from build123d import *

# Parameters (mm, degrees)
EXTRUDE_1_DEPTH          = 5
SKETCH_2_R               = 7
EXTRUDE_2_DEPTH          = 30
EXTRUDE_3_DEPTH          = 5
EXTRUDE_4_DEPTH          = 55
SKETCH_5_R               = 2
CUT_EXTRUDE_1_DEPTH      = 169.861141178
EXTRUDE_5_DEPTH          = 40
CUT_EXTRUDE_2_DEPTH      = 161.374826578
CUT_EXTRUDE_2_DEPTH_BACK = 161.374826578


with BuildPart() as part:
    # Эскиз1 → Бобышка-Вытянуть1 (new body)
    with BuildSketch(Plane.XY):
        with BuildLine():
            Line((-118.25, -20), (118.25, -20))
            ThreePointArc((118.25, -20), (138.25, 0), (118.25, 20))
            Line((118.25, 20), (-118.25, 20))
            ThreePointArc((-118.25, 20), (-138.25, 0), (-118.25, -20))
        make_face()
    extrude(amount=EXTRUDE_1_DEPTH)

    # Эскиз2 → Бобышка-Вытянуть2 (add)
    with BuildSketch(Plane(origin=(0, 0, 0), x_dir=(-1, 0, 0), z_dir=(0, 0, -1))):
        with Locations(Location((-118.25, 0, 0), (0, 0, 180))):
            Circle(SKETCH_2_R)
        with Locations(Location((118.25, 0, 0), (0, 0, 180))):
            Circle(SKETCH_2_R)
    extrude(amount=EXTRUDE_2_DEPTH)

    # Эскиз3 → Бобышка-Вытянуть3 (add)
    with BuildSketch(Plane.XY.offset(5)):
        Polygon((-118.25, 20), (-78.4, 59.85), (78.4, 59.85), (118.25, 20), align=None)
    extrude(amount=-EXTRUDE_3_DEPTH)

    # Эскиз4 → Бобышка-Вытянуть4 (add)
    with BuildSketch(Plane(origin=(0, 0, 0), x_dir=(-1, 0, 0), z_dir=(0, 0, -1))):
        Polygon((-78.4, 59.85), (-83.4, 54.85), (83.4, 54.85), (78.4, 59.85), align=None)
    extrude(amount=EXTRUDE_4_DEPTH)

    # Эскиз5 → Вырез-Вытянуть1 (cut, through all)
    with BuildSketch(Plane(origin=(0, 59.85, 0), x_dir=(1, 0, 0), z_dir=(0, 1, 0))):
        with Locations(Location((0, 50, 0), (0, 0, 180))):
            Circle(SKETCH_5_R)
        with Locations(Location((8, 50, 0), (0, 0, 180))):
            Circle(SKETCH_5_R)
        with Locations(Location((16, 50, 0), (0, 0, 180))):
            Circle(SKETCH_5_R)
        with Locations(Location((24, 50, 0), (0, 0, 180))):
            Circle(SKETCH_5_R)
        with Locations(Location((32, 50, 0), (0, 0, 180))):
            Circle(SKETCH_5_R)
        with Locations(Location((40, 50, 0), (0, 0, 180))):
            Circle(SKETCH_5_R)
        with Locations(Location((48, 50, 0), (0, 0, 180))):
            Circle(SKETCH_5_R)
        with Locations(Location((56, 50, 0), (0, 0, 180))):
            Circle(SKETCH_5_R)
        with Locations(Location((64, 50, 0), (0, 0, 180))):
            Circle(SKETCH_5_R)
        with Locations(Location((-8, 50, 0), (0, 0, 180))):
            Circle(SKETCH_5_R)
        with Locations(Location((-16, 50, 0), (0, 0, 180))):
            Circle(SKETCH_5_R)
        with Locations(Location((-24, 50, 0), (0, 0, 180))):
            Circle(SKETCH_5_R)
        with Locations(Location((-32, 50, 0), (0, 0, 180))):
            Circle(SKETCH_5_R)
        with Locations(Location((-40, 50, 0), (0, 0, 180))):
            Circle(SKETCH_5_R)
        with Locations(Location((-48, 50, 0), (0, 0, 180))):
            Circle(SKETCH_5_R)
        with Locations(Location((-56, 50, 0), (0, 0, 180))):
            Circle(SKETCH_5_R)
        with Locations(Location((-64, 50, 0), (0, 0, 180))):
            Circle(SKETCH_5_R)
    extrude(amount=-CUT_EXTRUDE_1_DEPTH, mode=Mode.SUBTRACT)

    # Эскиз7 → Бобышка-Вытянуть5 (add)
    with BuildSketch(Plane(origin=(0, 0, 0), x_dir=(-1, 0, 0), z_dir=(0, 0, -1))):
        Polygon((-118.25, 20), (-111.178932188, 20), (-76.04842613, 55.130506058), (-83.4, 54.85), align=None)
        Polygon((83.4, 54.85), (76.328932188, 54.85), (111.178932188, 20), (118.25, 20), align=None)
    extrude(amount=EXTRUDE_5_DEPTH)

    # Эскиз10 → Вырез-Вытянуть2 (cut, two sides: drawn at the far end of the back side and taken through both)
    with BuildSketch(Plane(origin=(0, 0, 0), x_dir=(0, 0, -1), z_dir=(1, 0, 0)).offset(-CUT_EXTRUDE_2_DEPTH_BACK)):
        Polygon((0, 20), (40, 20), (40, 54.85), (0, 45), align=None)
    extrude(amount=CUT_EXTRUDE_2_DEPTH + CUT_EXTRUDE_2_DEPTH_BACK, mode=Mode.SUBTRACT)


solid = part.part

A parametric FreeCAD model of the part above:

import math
import FreeCAD as App
import Part
import Sketcher

V = App.Vector

doc = App.newDocument("Part")
body = doc.addObject("PartDesign::Body", "Body")

sketch1 = body.newObject("Sketcher::SketchObject", "Sketch")
sketch1.AttachmentSupport = (doc.getObject("XY_Plane"), [""])
sketch1.MapMode = "FlatFace"
sketch1.addGeometry([
    Part.LineSegment(V(-118, -20, 0), V(118, -20, 0)),
    Part.ArcOfCircle(Part.Circle(V(118, 0, 0), V(0, 0, 1), 20), math.radians(-90), math.radians(90)),
    Part.LineSegment(V(118, 20, 0), V(-118, 20, 0)),
    Part.ArcOfCircle(Part.Circle(V(-118, 0, 0), V(0, 0, 1), 20), math.radians(90), math.radians(270)),
], False)
sketch1.addConstraint([
    Sketcher.Constraint("Tangent", 0, 2, 1, 1),
    Sketcher.Constraint("Tangent", 1, 2, 2, 1),
    Sketcher.Constraint("Tangent", 2, 2, 3, 1),
    Sketcher.Constraint("Tangent", 3, 2, 0, 1),
    Sketcher.Constraint("Horizontal", 0),
    Sketcher.Constraint("Horizontal", 2),
    Sketcher.Constraint("Symmetric", 1, 3, 3, 3, -1, 1),
    Sketcher.Constraint("Radius", 1, 20.0),
    Sketcher.Constraint("DistanceX", 0, 1, 0, 2, 236.5),
])
pad1 = body.newObject("PartDesign::Pad", "Pad")
pad1.Profile = sketch1
pad1.Length = 5

sketch2 = body.newObject("Sketcher::SketchObject", "Sketch001")
sketch2.AttachmentSupport = (doc.getObject("XY_Plane"), [""])
sketch2.MapMode = "FlatFace"
sketch2.addGeometry([
    Part.Circle(V(118, 0, 0), V(0, 0, 1), 7),
    Part.Circle(V(-118, 0, 0), V(0, 0, 1), 7),
], False)
sketch2.addConstraint([
    Sketcher.Constraint("Equal", 0, 1),
    Sketcher.Constraint("Symmetric", 0, 3, 1, 3, -1, 1),
    Sketcher.Constraint("PointOnObject", 0, 3, -1),
    Sketcher.Constraint("Diameter", 0, 14.0),
    Sketcher.Constraint("DistanceX", 1, 3, 0, 3, 236.5),
])
pad2 = body.newObject("PartDesign::Pad", "Pad001")
pad2.Profile = sketch2
pad2.Length = 30
pad2.Reversed = True

sketch3 = body.newObject("Sketcher::SketchObject", "Sketch002")
sketch3.AttachmentSupport = (doc.getObject("XY_Plane"), [""])
sketch3.MapMode = "FlatFace"
sketch3.AttachmentOffset = App.Placement(V(0, 0, 5), App.Rotation())
sketch3.addGeometry([
    Part.LineSegment(V(-78, 60, 0), V(-118, 20, 0)),
    Part.LineSegment(V(-118, 20, 0), V(118, 20, 0)),
    Part.LineSegment(V(118, 20, 0), V(78, 60, 0)),
    Part.LineSegment(V(78, 60, 0), V(-78, 60, 0)),
], False)
sketch3.addConstraint([
    Sketcher.Constraint("Coincident", 0, 2, 1, 1),
    Sketcher.Constraint("Coincident", 1, 2, 2, 1),
    Sketcher.Constraint("Coincident", 2, 2, 3, 1),
    Sketcher.Constraint("Coincident", 3, 2, 0, 1),
    Sketcher.Constraint("Horizontal", 1),
    Sketcher.Constraint("Horizontal", 3),
    Sketcher.Constraint("Perpendicular", 0, 2),
    Sketcher.Constraint("Equal", 0, 2),
    Sketcher.Constraint("DistanceX", 1, 1, 1, 2, 236.5),
    Sketcher.Constraint("DistanceX", 3, 2, 3, 1, 156.8),
    Sketcher.Constraint("DistanceY", -1, 1, 0, 2, 20.0),
    Sketcher.Constraint("DistanceX", -1, 1, 2, 2, 78.4),
])
pad3 = body.newObject("PartDesign::Pad", "Pad002")
pad3.Profile = sketch3
pad3.Length = 5
pad3.Reversed = True

sketch4 = body.newObject("Sketcher::SketchObject", "Sketch003")
sketch4.AttachmentSupport = (doc.getObject("XY_Plane"), [""])
sketch4.MapMode = "FlatFace"
sketch4.addGeometry([
    Part.LineSegment(V(78, 60, 0), V(83, 55, 0)),
    Part.LineSegment(V(83, 55, 0), V(-83, 55, 0)),
    Part.LineSegment(V(-83, 55, 0), V(-78, 60, 0)),
    Part.LineSegment(V(-78, 60, 0), V(78, 60, 0)),
], False)
sketch4.addConstraint([
    Sketcher.Constraint("Coincident", 0, 2, 1, 1),
    Sketcher.Constraint("Coincident", 1, 2, 2, 1),
    Sketcher.Constraint("Coincident", 2, 2, 3, 1),
    Sketcher.Constraint("Coincident", 3, 2, 0, 1),
    Sketcher.Constraint("Horizontal", 1),
    Sketcher.Constraint("Horizontal", 3),
    Sketcher.Constraint("Perpendicular", 0, 2),
    Sketcher.Constraint("Equal", 0, 2),
    Sketcher.Constraint("DistanceX", 1, 2, 1, 1, 166.8),
    Sketcher.Constraint("DistanceX", 3, 1, 3, 2, 156.8),
    Sketcher.Constraint("DistanceX", -1, 1, 0, 2, 83.4),
    Sketcher.Constraint("DistanceY", -1, 1, 0, 2, 54.85),
])
pad4 = body.newObject("PartDesign::Pad", "Pad003")
pad4.Profile = sketch4
pad4.Length = 55
pad4.Reversed = True

sketch5 = body.newObject("Sketcher::SketchObject", "Sketch004")
sketch5.AttachmentSupport = (doc.getObject("XZ_Plane"), [""])
sketch5.MapMode = "FlatFace"
sketch5.AttachmentOffset = App.Placement(V(0, 0, -59.85), App.Rotation())
sketch5.addGeometry([
    Part.Circle(V(0, -50, 0), V(0, 0, 1), 2),
    Part.Circle(V(8, -50, 0), V(0, 0, 1), 2),
    Part.Circle(V(16, -50, 0), V(0, 0, 1), 2),
    Part.Circle(V(24, -50, 0), V(0, 0, 1), 2),
    Part.Circle(V(32, -50, 0), V(0, 0, 1), 2),
    Part.Circle(V(40, -50, 0), V(0, 0, 1), 2),
    Part.Circle(V(48, -50, 0), V(0, 0, 1), 2),
    Part.Circle(V(56, -50, 0), V(0, 0, 1), 2),
    Part.Circle(V(64, -50, 0), V(0, 0, 1), 2),
    Part.Circle(V(-8, -50, 0), V(0, 0, 1), 2),
    Part.Circle(V(-16, -50, 0), V(0, 0, 1), 2),
    Part.Circle(V(-24, -50, 0), V(0, 0, 1), 2),
    Part.Circle(V(-32, -50, 0), V(0, 0, 1), 2),
    Part.Circle(V(-40, -50, 0), V(0, 0, 1), 2),
    Part.Circle(V(-48, -50, 0), V(0, 0, 1), 2),
    Part.Circle(V(-56, -50, 0), V(0, 0, 1), 2),
    Part.Circle(V(-64, -50, 0), V(0, 0, 1), 2),
], False)
sketch5.addConstraint([
    Sketcher.Constraint("Equal", 0, 1),
    Sketcher.Constraint("Equal", 1, 2),
    Sketcher.Constraint("Equal", 2, 3),
    Sketcher.Constraint("Equal", 3, 4),
    Sketcher.Constraint("Equal", 4, 5),
    Sketcher.Constraint("Equal", 5, 6),
    Sketcher.Constraint("Equal", 6, 7),
    Sketcher.Constraint("Equal", 7, 8),
    Sketcher.Constraint("Equal", 8, 9),
    Sketcher.Constraint("Equal", 9, 10),
    Sketcher.Constraint("Equal", 10, 11),
    Sketcher.Constraint("Equal", 11, 12),
    Sketcher.Constraint("Equal", 12, 13),
    Sketcher.Constraint("Equal", 13, 14),
    Sketcher.Constraint("Equal", 14, 15),
    Sketcher.Constraint("Equal", 15, 16),
    Sketcher.Constraint("Symmetric", 1, 3, 9, 3, -2),
    Sketcher.Constraint("Symmetric", 2, 3, 10, 3, -2),
    Sketcher.Constraint("Symmetric", 3, 3, 11, 3, -2),
    Sketcher.Constraint("Symmetric", 4, 3, 12, 3, -2),
    Sketcher.Constraint("Symmetric", 5, 3, 13, 3, -2),
    Sketcher.Constraint("Symmetric", 6, 3, 14, 3, -2),
    Sketcher.Constraint("Symmetric", 7, 3, 15, 3, -2),
    Sketcher.Constraint("Symmetric", 8, 3, 16, 3, -2),
    Sketcher.Constraint("PointOnObject", 0, 3, -2),
    Sketcher.Constraint("Horizontal", 0, 3, 1, 3),
    Sketcher.Constraint("Horizontal", 1, 3, 2, 3),
    Sketcher.Constraint("Horizontal", 2, 3, 3, 3),
    Sketcher.Constraint("Horizontal", 3, 3, 4, 3),
    Sketcher.Constraint("Horizontal", 4, 3, 5, 3),
    Sketcher.Constraint("Horizontal", 5, 3, 6, 3),
    Sketcher.Constraint("Horizontal", 6, 3, 7, 3),
    Sketcher.Constraint("Horizontal", 7, 3, 8, 3),
    Sketcher.Constraint("Diameter", 0, 4.0),
    Sketcher.Constraint("DistanceY", 0, 3, -1, 1, 50.0),
    Sketcher.Constraint("DistanceX", -1, 1, 1, 3, 8.0),
    Sketcher.Constraint("DistanceX", -1, 1, 2, 3, 16.0),
    Sketcher.Constraint("DistanceX", -1, 1, 3, 3, 24.0),
    Sketcher.Constraint("DistanceX", -1, 1, 4, 3, 32.0),
    Sketcher.Constraint("DistanceX", -1, 1, 5, 3, 40.0),
    Sketcher.Constraint("DistanceX", -1, 1, 6, 3, 48.0),
    Sketcher.Constraint("DistanceX", -1, 1, 7, 3, 56.0),
    Sketcher.Constraint("DistanceX", -1, 1, 8, 3, 64.0),
])
pocket1 = body.newObject("PartDesign::Pocket", "Pocket")
pocket1.Profile = sketch5
pocket1.Type = "ThroughAll"
pocket1.Reversed = True

sketch6 = body.newObject("Sketcher::SketchObject", "Sketch005")
sketch6.AttachmentSupport = (doc.getObject("XY_Plane"), [""])
sketch6.MapMode = "FlatFace"
sketch6.addGeometry([
    Part.LineSegment(V(118, 20, 0), V(111, 20, 0)),
    Part.LineSegment(V(111, 20, 0), V(76, 55, 0)),
    Part.LineSegment(V(76, 55, 0), V(83, 55, 0)),
    Part.LineSegment(V(83, 55, 0), V(118, 20, 0)),
    Part.LineSegment(V(-83, 55, 0), V(-76, 55, 0)),
    Part.LineSegment(V(-76, 55, 0), V(-111, 20, 0)),
    Part.LineSegment(V(-111, 20, 0), V(-118, 20, 0)),
    Part.LineSegment(V(-118, 20, 0), V(-83, 55, 0)),
], False)
sketch6.addConstraint([
    Sketcher.Constraint("Coincident", 0, 2, 1, 1),
    Sketcher.Constraint("Coincident", 1, 2, 2, 1),
    Sketcher.Constraint("Coincident", 2, 2, 3, 1),
    Sketcher.Constraint("Coincident", 3, 2, 0, 1),
    Sketcher.Constraint("Coincident", 4, 2, 5, 1),
    Sketcher.Constraint("Coincident", 5, 2, 6, 1),
    Sketcher.Constraint("Coincident", 6, 2, 7, 1),
    Sketcher.Constraint("Coincident", 7, 2, 4, 1),
    Sketcher.Constraint("Horizontal", 0),
    Sketcher.Constraint("Horizontal", 4),
    Sketcher.Constraint("Horizontal", 6),
    Sketcher.Constraint("Symmetric", 0, 2, 5, 2, -2),
    Sketcher.Constraint("Symmetric", 2, 2, 7, 2, -2),
    Sketcher.Constraint("Parallel", 1, 3),
    Sketcher.Constraint("Perpendicular", 3, 5),
    Sketcher.Constraint("Parallel", 5, 7),
    Sketcher.Constraint("Equal", 0, 4),
    Sketcher.Constraint("DistanceY", -1, 1, 0, 2, 20.0),
    Sketcher.Constraint("DistanceX", -1, 1, 2, 2, 83.4),
    Sketcher.Constraint("DistanceY", -1, 1, 2, 2, 54.85),
    Sketcher.Constraint("Distance", 1, 49.682038),
    Sketcher.Constraint("DistanceX", 0, 2, 0, 1, 7.071068),
])
pad5 = body.newObject("PartDesign::Pad", "Pad004")
pad5.Profile = sketch6
pad5.Length = 40
pad5.Reversed = True

sketch7 = body.newObject("Sketcher::SketchObject", "Sketch006")
sketch7.AttachmentSupport = (doc.getObject("YZ_Plane"), [""])
sketch7.MapMode = "FlatFace"
sketch7.addGeometry([
    Part.LineSegment(V(20, 0, 0), V(20, -40, 0)),
    Part.LineSegment(V(20, -40, 0), V(55, -40, 0)),
    Part.LineSegment(V(55, -40, 0), V(45, 0, 0)),
    Part.LineSegment(V(45, 0, 0), V(20, 0, 0)),
], False)
sketch7.addConstraint([
    Sketcher.Constraint("Coincident", 0, 2, 1, 1),
    Sketcher.Constraint("Coincident", 1, 2, 2, 1),
    Sketcher.Constraint("Coincident", 2, 2, 3, 1),
    Sketcher.Constraint("Coincident", 3, 2, 0, 1),
    Sketcher.Constraint("Vertical", 0),
    Sketcher.Constraint("Horizontal", 1),
    Sketcher.Constraint("Horizontal", 3),
    Sketcher.Constraint("PointOnObject", 2, 2, -1),
    Sketcher.Constraint("DistanceX", 3, 2, 3, 1, 25.0),
    Sketcher.Constraint("DistanceY", 0, 2, 0, 1, 40.0),
    Sketcher.Constraint("DistanceX", -1, 1, 0, 2, 20.0),
    Sketcher.Constraint("DistanceX", 1, 1, 1, 2, 34.85),
])
pocket2 = body.newObject("PartDesign::Pocket", "Pocket001")
pocket2.Profile = sketch7
pocket2.Type = "ThroughAll"
pocket2.Midplane = True

doc.recompute()
